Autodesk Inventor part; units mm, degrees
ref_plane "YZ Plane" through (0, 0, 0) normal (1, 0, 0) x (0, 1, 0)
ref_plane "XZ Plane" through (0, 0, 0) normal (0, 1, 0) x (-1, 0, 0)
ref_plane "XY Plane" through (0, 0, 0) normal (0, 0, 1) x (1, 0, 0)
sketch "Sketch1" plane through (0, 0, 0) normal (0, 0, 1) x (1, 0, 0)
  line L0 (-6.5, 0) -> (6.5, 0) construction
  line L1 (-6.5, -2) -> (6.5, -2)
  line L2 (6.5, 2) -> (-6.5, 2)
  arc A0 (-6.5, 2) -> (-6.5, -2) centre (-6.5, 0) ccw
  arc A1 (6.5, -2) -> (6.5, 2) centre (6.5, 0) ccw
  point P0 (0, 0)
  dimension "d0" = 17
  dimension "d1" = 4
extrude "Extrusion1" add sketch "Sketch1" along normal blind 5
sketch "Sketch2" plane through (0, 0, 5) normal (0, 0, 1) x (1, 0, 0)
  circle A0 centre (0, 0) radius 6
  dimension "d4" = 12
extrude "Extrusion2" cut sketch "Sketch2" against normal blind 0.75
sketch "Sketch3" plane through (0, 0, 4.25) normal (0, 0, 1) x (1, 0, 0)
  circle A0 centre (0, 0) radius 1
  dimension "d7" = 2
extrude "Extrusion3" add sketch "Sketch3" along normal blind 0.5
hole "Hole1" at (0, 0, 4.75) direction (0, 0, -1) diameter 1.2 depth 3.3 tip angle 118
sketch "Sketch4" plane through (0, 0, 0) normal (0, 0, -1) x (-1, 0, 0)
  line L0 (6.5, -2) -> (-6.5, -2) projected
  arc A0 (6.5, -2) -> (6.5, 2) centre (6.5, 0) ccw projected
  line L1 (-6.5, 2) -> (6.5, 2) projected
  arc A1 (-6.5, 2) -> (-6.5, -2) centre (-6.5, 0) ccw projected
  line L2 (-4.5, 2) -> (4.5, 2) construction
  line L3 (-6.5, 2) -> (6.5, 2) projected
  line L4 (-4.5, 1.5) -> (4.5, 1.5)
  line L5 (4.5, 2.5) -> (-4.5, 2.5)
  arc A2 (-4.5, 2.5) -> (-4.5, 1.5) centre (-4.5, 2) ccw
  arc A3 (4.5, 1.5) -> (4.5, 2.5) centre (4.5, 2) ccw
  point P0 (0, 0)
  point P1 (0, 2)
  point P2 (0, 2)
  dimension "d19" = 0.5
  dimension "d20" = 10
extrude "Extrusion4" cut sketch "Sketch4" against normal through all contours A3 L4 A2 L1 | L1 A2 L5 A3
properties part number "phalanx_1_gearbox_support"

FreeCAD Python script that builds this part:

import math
import FreeCAD as App
import Part
import Sketcher
Q = App.Units.Quantity

doc = App.newDocument("Part")
body = doc.addObject("PartDesign::Body", "Body")

# Sketch on XY plane
sketch1 = doc.addObject("Sketcher::SketchObject", "Sketch")
body.addObject(sketch1)
sketch1.AttachmentSupport = (doc.XY_Plane, [""])
sketch1.MapMode = "FlatFace"
sketch1.addGeometry(Part.ArcOfCircle(Part.Circle(App.Vector(-6.5, 0, 0), App.Vector(0, 0, 1), 2), math.radians(90), math.radians(270)), False)
sketch1.addGeometry(Part.LineSegment(App.Vector(-6.5, -2, 0), App.Vector(6.5, -2, 0)), False)
sketch1.addGeometry(Part.ArcOfCircle(Part.Circle(App.Vector(6.5, 0, 0), App.Vector(0, 0, 1), 2), math.radians(-90), math.radians(90)), False)
sketch1.addGeometry(Part.LineSegment(App.Vector(6.5, 2, 0), App.Vector(-6.5, 2, 0)), False)
sketch1.addConstraint(Sketcher.Constraint("Tangent", 0, 2, 1, 1))
sketch1.addConstraint(Sketcher.Constraint("Tangent", 1, 2, 2, 1))
sketch1.addConstraint(Sketcher.Constraint("Tangent", 2, 2, 3, 1))
sketch1.addConstraint(Sketcher.Constraint("Tangent", 3, 2, 0, 1))
sketch1.addConstraint(Sketcher.Constraint("Horizontal", 1))
sketch1.addConstraint(Sketcher.Constraint("Horizontal", 3))
sketch1.addConstraint(Sketcher.Constraint("Symmetric", 0, 3, 2, 3, -1, 1))
sketch1.addConstraint(Sketcher.Constraint("Radius", 0, Q("2 mm")))
sketch1.addConstraint(Sketcher.Constraint("DistanceX", 1, 1, 1, 2, Q("13 mm")))
pad1 = doc.addObject("PartDesign::Pad", "Pad")
body.addObject(pad1)
pad1.Profile = sketch1
pad1.Length = 5

# Sketch on XY plane
sketch2 = doc.addObject("Sketcher::SketchObject", "Sketch001")
body.addObject(sketch2)
sketch2.AttachmentSupport = (doc.XY_Plane, [""])
sketch2.MapMode = "FlatFace"
sketch2.AttachmentOffset = App.Placement(App.Vector(0, 0, 5), App.Rotation())
sketch2.addGeometry(Part.Circle(App.Vector(0, 0, 0), App.Vector(0, 0, 1), 6), False)
sketch2.addConstraint(Sketcher.Constraint("Coincident", 0, 3, -1, 1))
sketch2.addConstraint(Sketcher.Constraint("Diameter", 0, Q("12 mm")))
pocket1 = doc.addObject("PartDesign::Pocket", "Pocket")
body.addObject(pocket1)
pocket1.Profile = sketch2
pocket1.Length = 0.75

# Sketch on XY plane
sketch3 = doc.addObject("Sketcher::SketchObject", "Sketch002")
body.addObject(sketch3)
sketch3.AttachmentSupport = (doc.XY_Plane, [""])
sketch3.MapMode = "FlatFace"
sketch3.AttachmentOffset = App.Placement(App.Vector(0, 0, 4.25), App.Rotation())
sketch3.addGeometry(Part.Circle(App.Vector(0, 0, 0), App.Vector(0, 0, 1), 1), False)
sketch3.addConstraint(Sketcher.Constraint("Coincident", 0, 3, -1, 1))
sketch3.addConstraint(Sketcher.Constraint("Diameter", 0, Q("2 mm")))
pad2 = doc.addObject("PartDesign::Pad", "Pad001")
body.addObject(pad2)
pad2.Profile = sketch3
pad2.Length = 0.5

# Sketch on XY plane
sketch4 = doc.addObject("Sketcher::SketchObject", "Sketch003")
body.addObject(sketch4)
sketch4.AttachmentSupport = (doc.XY_Plane, [""])
sketch4.MapMode = "FlatFace"
sketch4.AttachmentOffset = App.Placement(App.Vector(0, 0, 4.75), App.Rotation())
sketch4.addGeometry(Part.Circle(App.Vector(0, 0, 0), App.Vector(0, 0, 1), 0.6), False)
sketch4.addConstraint(Sketcher.Constraint("Coincident", 0, 3, -1, 1))
sketch4.addConstraint(Sketcher.Constraint("Diameter", 0, Q("1.2 mm")))
doc.recompute()
hole = doc.addObject("PartDesign::Hole", "Hole")
body.addObject(hole)
hole.Profile = sketch4
hole.ThreadType = "None"
hole.Diameter = 1.2
hole.DepthType = "Dimension"
hole.Depth = 3.3
hole.DrillPoint = "Angled"
hole.DrillPointAngle = 118

# Sketch on XY plane
sketch5 = doc.addObject("Sketcher::SketchObject", "Sketch004")
body.addObject(sketch5)
sketch5.AttachmentSupport = (doc.XY_Plane, [""])
sketch5.MapMode = "FlatFace"
sketch5.addGeometry(Part.ArcOfCircle(Part.Circle(App.Vector(-4.5, 2, 0), App.Vector(0, 0, 1), 0.5), math.radians(90), math.radians(270)), False)
sketch5.addGeometry(Part.LineSegment(App.Vector(-4.5, 2.5, 0), App.Vector(4.5, 2.5, 0)), False)
sketch5.addGeometry(Part.ArcOfCircle(Part.Circle(App.Vector(4.5, 2, 0), App.Vector(0, 0, 1), 0.5), math.radians(-90), math.radians(90)), False)
sketch5.addGeometry(Part.LineSegment(App.Vector(4.5, 1.5, 0), App.Vector(-4.5, 1.5, 0)), False)
sketch5.addConstraint(Sketcher.Constraint("Tangent", 0, 1, 1, 1))
sketch5.addConstraint(Sketcher.Constraint("Tangent", 1, 2, 2, 2))
sketch5.addConstraint(Sketcher.Constraint("Tangent", 2, 1, 3, 1))
sketch5.addConstraint(Sketcher.Constraint("Tangent", 3, 2, 0, 2))
sketch5.addConstraint(Sketcher.Constraint("Horizontal", 1))
sketch5.addConstraint(Sketcher.Constraint("Horizontal", 3))
sketch5.addConstraint(Sketcher.Constraint("Radius", 0, Q("0.5 mm")))
sketch5.addConstraint(Sketcher.Constraint("DistanceX", 1, 1, 1, 2, Q("9 mm")))
sketch5.addConstraint(Sketcher.Constraint("DistanceY", -1, 1, 0, 3, Q("2 mm")))
sketch5.addConstraint(Sketcher.Constraint("DistanceX", 0, 3, -1, 1, Q("4.5 mm")))
pocket2 = doc.addObject("PartDesign::Pocket", "Pocket001")
body.addObject(pocket2)
pocket2.Profile = sketch5
pocket2.Type = "ThroughAll"
pocket2.Reversed = True

doc.recompute()
